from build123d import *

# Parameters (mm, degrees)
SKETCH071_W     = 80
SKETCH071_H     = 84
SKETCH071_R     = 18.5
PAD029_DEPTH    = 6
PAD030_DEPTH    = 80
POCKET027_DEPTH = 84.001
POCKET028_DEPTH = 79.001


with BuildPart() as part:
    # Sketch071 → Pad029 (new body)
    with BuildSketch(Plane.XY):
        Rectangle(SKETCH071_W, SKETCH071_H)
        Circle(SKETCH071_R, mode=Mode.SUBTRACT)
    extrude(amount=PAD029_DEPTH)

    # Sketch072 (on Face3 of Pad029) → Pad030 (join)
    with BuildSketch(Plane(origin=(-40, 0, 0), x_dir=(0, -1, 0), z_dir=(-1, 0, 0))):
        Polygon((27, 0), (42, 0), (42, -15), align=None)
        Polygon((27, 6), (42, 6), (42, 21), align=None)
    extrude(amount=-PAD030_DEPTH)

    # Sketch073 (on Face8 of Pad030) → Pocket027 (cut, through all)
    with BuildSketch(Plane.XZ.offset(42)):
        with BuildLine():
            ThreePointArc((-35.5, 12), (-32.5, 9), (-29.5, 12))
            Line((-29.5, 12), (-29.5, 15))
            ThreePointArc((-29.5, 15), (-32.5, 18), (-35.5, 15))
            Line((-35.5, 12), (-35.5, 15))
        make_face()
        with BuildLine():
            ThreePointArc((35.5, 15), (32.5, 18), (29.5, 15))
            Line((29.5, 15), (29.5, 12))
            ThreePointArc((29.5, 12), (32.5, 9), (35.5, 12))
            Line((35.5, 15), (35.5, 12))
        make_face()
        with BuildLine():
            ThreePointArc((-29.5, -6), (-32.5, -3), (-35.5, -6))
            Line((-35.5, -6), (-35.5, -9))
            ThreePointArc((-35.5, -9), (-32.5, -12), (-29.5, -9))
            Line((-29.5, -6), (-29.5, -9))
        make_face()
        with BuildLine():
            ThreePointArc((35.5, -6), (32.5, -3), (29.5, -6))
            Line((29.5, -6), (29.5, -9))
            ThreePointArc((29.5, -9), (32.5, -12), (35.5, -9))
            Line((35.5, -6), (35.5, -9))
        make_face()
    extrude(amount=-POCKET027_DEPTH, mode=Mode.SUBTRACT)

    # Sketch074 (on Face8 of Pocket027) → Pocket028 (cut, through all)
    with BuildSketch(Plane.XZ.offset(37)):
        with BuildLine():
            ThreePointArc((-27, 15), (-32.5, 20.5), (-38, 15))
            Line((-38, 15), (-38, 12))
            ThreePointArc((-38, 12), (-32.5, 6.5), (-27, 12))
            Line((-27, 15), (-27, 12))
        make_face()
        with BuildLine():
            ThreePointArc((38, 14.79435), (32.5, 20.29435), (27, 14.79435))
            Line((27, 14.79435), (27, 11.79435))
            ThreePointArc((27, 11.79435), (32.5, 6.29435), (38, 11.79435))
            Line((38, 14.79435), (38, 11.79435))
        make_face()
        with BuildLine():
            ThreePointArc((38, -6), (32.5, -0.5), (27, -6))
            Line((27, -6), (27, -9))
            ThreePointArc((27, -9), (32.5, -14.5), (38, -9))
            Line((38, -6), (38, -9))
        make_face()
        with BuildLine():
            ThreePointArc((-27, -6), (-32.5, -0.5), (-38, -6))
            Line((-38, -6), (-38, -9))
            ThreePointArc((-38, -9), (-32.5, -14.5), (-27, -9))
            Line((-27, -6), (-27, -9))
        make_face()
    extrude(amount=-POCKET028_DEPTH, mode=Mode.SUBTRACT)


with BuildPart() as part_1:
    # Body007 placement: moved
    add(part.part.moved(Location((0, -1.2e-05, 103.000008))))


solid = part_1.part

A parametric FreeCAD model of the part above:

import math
import FreeCAD as App
import Part
import Sketcher

V = App.Vector
Q = App.Units.Quantity


def add_polygon(sketch, points):
    """Adds a closed chain of lines whose ends are joined by coincident constraints."""
    first, n = sketch.GeometryCount, len(points)
    for a, b in zip(points, points[1:] + points[:1]):
        sketch.addGeometry(Part.LineSegment(App.Vector(*a, 0), App.Vector(*b, 0)), False)
    for i in range(n):
        sketch.addConstraint(Sketcher.Constraint("Coincident", first + i, 2, first + (i + 1) % n, 1))

doc = App.newDocument("Part")
body = doc.addObject("PartDesign::Body", "Body")

sketch1 = body.newObject("Sketcher::SketchObject", "Sketch")
sketch1.AttachmentSupport = (doc.getObject("XY_Plane"), [""])
sketch1.MapMode = "FlatFace"
add_polygon(sketch1, [(-40, 42), (-40, -42), (40, -42), (40, 42)])
sketch1.addGeometry(Part.Circle(V(0, 0, 0), V(0, 0, 1), 18), False)
sketch1.addConstraint([
    Sketcher.Constraint("Vertical", 0),
    Sketcher.Constraint("Horizontal", 1),
    Sketcher.Constraint("Vertical", 2),
    Sketcher.Constraint("Horizontal", 3),
    Sketcher.Constraint("Coincident", 4, 3, -1, 1),
    Sketcher.Constraint("Symmetric", 0, 2, 2, 2, -1, 1),
    Sketcher.Constraint("Diameter", 4, Q("37 mm")),
    Sketcher.Constraint("DistanceX", 1, 1, 1, 2, Q("80 mm")),
    Sketcher.Constraint("DistanceY", 0, 2, 0, 1, Q("84 mm")),
])
pad1 = body.newObject("PartDesign::Pad", "Pad")
pad1.Profile = sketch1
pad1.Length = 6

sketch2 = body.newObject("Sketcher::SketchObject", "Sketch001")
sketch2.AttachmentSupport = (doc.getObject("YZ_Plane"), [""])
sketch2.MapMode = "FlatFace"
sketch2.AttachmentOffset = App.Placement(V(0, 0, -40), App.Rotation())
add_polygon(sketch2, [(-42, 0), (-27, 0), (-42, -15)])
add_polygon(sketch2, [(-27, 6), (-42, 6), (-42, 21)])
sketch2.addConstraint([
    Sketcher.Constraint("Horizontal", 0),
    Sketcher.Constraint("Vertical", 2),
    Sketcher.Constraint("Horizontal", 3),
    Sketcher.Constraint("Vertical", 4),
    Sketcher.Constraint("PointOnObject", 0, 2, -1),
    Sketcher.Constraint("Perpendicular", 1, 5),
    Sketcher.Constraint("Vertical", 2, 2, 3, 2),
    Sketcher.Constraint("Vertical", 0, 2, 5, 2),
    Sketcher.Constraint("Equal", 3, 2),
    Sketcher.Constraint("DistanceX", 0, 1, 0, 2, Q("15 mm")),
    Sketcher.Constraint("DistanceX", 0, 2, -1, 1, Q("27 mm")),
    Sketcher.Constraint("DistanceY", -1, 1, 3, 2, Q("6 mm")),
])
pad2 = body.newObject("PartDesign::Pad", "Pad001")
pad2.Profile = sketch2
pad2.Length = 80

sketch3 = body.newObject("Sketcher::SketchObject", "Sketch002")
sketch3.AttachmentSupport = (doc.getObject("XZ_Plane"), [""])
sketch3.MapMode = "FlatFace"
sketch3.AttachmentOffset = App.Placement(V(0, 0, 42), App.Rotation())
sketch3.addGeometry([
    Part.ArcOfCircle(Part.Circle(V(-32.5, 12, 0), V(0, 0, 1), 3), math.radians(180), math.radians(360)),
    Part.LineSegment(V(-29.5, 12, 0), V(-29.5, 15, 0)),
    Part.ArcOfCircle(Part.Circle(V(-32.5, 15, 0), V(0, 0, 1), 3), math.radians(0), math.radians(180)),
    Part.LineSegment(V(-35.5, 15, 0), V(-35.5, 12, 0)),
    Part.ArcOfCircle(Part.Circle(V(32.5, 15, 0), V(0, 0, 1), 3), math.radians(0), math.radians(180)),
    Part.LineSegment(V(29.5, 15, 0), V(29.5, 12, 0)),
    Part.ArcOfCircle(Part.Circle(V(32.5, 12, 0), V(0, 0, 1), 3), math.radians(180), math.radians(360)),
    Part.LineSegment(V(35.5, 12, 0), V(35.5, 15, 0)),
    Part.ArcOfCircle(Part.Circle(V(-32.5, -6, 0), V(0, 0, 1), 3), math.radians(0), math.radians(180)),
    Part.LineSegment(V(-35.5, -6, 0), V(-35.5, -9, 0)),
    Part.ArcOfCircle(Part.Circle(V(-32.5, -9, 0), V(0, 0, 1), 3), math.radians(180), math.radians(360)),
    Part.LineSegment(V(-29.5, -9, 0), V(-29.5, -6, 0)),
    Part.ArcOfCircle(Part.Circle(V(32.5, -6, 0), V(0, 0, 1), 3), math.radians(0), math.radians(180)),
    Part.LineSegment(V(29.5, -6, 0), V(29.5, -9, 0)),
    Part.ArcOfCircle(Part.Circle(V(32.5, -9, 0), V(0, 0, 1), 3), math.radians(180), math.radians(360)),
    Part.LineSegment(V(35.5, -9, 0), V(35.5, -6, 0)),
], False)
sketch3.addConstraint([
    Sketcher.Constraint("Tangent", 0, 2, 1, 1),
    Sketcher.Constraint("Tangent", 1, 2, 2, 1),
    Sketcher.Constraint("Tangent", 2, 2, 3, 1),
    Sketcher.Constraint("Tangent", 3, 2, 0, 1),
    Sketcher.Constraint("Tangent", 4, 2, 5, 1),
    Sketcher.Constraint("Tangent", 5, 2, 6, 1),
    Sketcher.Constraint("Tangent", 6, 2, 7, 1),
    Sketcher.Constraint("Tangent", 7, 2, 4, 1),
    Sketcher.Constraint("Tangent", 8, 2, 9, 1),
    Sketcher.Constraint("Tangent", 9, 2, 10, 1),
    Sketcher.Constraint("Tangent", 10, 2, 11, 1),
    Sketcher.Constraint("Tangent", 11, 2, 8, 1),
    Sketcher.Constraint("Tangent", 12, 2, 13, 1),
    Sketcher.Constraint("Tangent", 13, 2, 14, 1),
    Sketcher.Constraint("Tangent", 14, 2, 15, 1),
    Sketcher.Constraint("Tangent", 15, 2, 12, 1),
    Sketcher.Constraint("Vertical", 1),
    Sketcher.Constraint("Vertical", 3),
    Sketcher.Constraint("Vertical", 5),
    Sketcher.Constraint("Vertical", 7),
    Sketcher.Constraint("Vertical", 9),
    Sketcher.Constraint("Vertical", 11),
    Sketcher.Constraint("Vertical", 13),
    Sketcher.Constraint("Vertical", 15),
    Sketcher.Constraint("Equal", 2, 4),
    Sketcher.Constraint("Equal", 6, 8),
    Sketcher.Constraint("Equal", 10, 12),
    Sketcher.Constraint("Symmetric", 2, 3, 4, 3, -2),
    Sketcher.Constraint("Symmetric", 8, 3, 12, 3, -2),
    Sketcher.Constraint("Horizontal", 0, 3, 6, 3),
    Sketcher.Constraint("Horizontal", 10, 3, 14, 3),
    Sketcher.Constraint("Vertical", 2, 3, 8, 3),
    Sketcher.Constraint("Equal", 7, 9),
    Sketcher.Constraint("Radius", 0, Q("3 mm")),
    Sketcher.Constraint("DistanceY", 1, 1, 1, 2, Q("3 mm")),
    Sketcher.Constraint("DistanceY", -1, 1, 0, 3, Q("12 mm")),
    Sketcher.Constraint("DistanceY", 8, 3, -1, 1, Q("6 mm")),
    Sketcher.Constraint("DistanceX", 2, 3, 4, 3, Q("65 mm")),
])
pocket1 = body.newObject("PartDesign::Pocket", "Pocket")
pocket1.Profile = sketch3
pocket1.Type = "ThroughAll"

sketch4 = body.newObject("Sketcher::SketchObject", "Sketch003")
sketch4.AttachmentSupport = (doc.getObject("XZ_Plane"), [""])
sketch4.MapMode = "FlatFace"
sketch4.AttachmentOffset = App.Placement(V(0, 0, 37), App.Rotation())
sketch4.addGeometry([
    Part.ArcOfCircle(Part.Circle(V(-32.5, 15, 0), V(0, 0, 1), 5.5), math.radians(0), math.radians(180)),
    Part.LineSegment(V(-38, 15, 0), V(-38, 12, 0)),
    Part.ArcOfCircle(Part.Circle(V(-32.5, 12, 0), V(0, 0, 1), 5.5), math.radians(180), math.radians(360)),
    Part.LineSegment(V(-27, 12, 0), V(-27, 15, 0)),
    Part.ArcOfCircle(Part.Circle(V(32.5, 14.8, 0), V(0, 0, 1), 5.5), math.radians(0), math.radians(180)),
    Part.LineSegment(V(27, 14.8, 0), V(27, 11.8, 0)),
    Part.ArcOfCircle(Part.Circle(V(32.5, 11.8, 0), V(0, 0, 1), 5.5), math.radians(180), math.radians(360)),
    Part.LineSegment(V(38, 11.8, 0), V(38, 14.8, 0)),
    Part.ArcOfCircle(Part.Circle(V(32.5, -6, 0), V(0, 0, 1), 5.5), math.radians(0), math.radians(180)),
    Part.LineSegment(V(27, -6, 0), V(27, -9, 0)),
    Part.ArcOfCircle(Part.Circle(V(32.5, -9, 0), V(0, 0, 1), 5.5), math.radians(180), math.radians(360)),
    Part.LineSegment(V(38, -9, 0), V(38, -6, 0)),
    Part.ArcOfCircle(Part.Circle(V(-32.5, -6, 0), V(0, 0, 1), 5.5), math.radians(0), math.radians(180)),
    Part.LineSegment(V(-38, -6, 0), V(-38, -9, 0)),
    Part.ArcOfCircle(Part.Circle(V(-32.5, -9, 0), V(0, 0, 1), 5.5), math.radians(180), math.radians(360)),
    Part.LineSegment(V(-27, -9, 0), V(-27, -6, 0)),
], False)
sketch4.addConstraint([
    Sketcher.Constraint("Tangent", 0, 2, 1, 1),
    Sketcher.Constraint("Tangent", 1, 2, 2, 1),
    Sketcher.Constraint("Tangent", 2, 2, 3, 1),
    Sketcher.Constraint("Tangent", 3, 2, 0, 1),
    Sketcher.Constraint("Tangent", 4, 2, 5, 1),
    Sketcher.Constraint("Tangent", 5, 2, 6, 1),
    Sketcher.Constraint("Tangent", 6, 2, 7, 1),
    Sketcher.Constraint("Tangent", 7, 2, 4, 1),
    Sketcher.Constraint("Tangent", 8, 2, 9, 1),
    Sketcher.Constraint("Tangent", 9, 2, 10, 1),
    Sketcher.Constraint("Tangent", 10, 2, 11, 1),
    Sketcher.Constraint("Tangent", 11, 2, 8, 1),
    Sketcher.Constraint("Tangent", 12, 2, 13, 1),
    Sketcher.Constraint("Tangent", 13, 2, 14, 1),
    Sketcher.Constraint("Tangent", 14, 2, 15, 1),
    Sketcher.Constraint("Tangent", 15, 2, 12, 1),
    Sketcher.Constraint("Vertical", 1),
    Sketcher.Constraint("Vertical", 3),
    Sketcher.Constraint("Vertical", 5),
    Sketcher.Constraint("Vertical", 7),
    Sketcher.Constraint("Vertical", 9),
    Sketcher.Constraint("Vertical", 11),
    Sketcher.Constraint("Vertical", 13),
    Sketcher.Constraint("Vertical", 15),
    Sketcher.Constraint("Equal", 2, 4),
    Sketcher.Constraint("Equal", 6, 8),
    Sketcher.Constraint("Equal", 10, 12),
    Sketcher.Constraint("Symmetric", 8, 3, 12, 3, -2),
    Sketcher.Constraint("Horizontal", 10, 3, 14, 3),
    Sketcher.Constraint("Vertical", 6, 3, 8, 3),
    Sketcher.Constraint("Vertical", 2, 3, 12, 3),
    Sketcher.Constraint("Equal", 3, 5),
    Sketcher.Constraint("Equal", 7, 9),
    Sketcher.Constraint("Radius", 0, Q("5.5 mm")),
    Sketcher.Constraint("DistanceY", 1, 2, 1, 1, Q("3 mm")),
    Sketcher.Constraint("DistanceY", -1, 1, 0, 3, Q("15 mm")),
    Sketcher.Constraint("DistanceY", 8, 3, -1, 1, Q("6 mm")),
    Sketcher.Constraint("DistanceX", 0, 2, -1, 1, Q("38 mm")),
    Sketcher.Constraint("DistanceY", -1, 1, 4, 3, Q("14.79435 mm")),
])
pocket2 = body.newObject("PartDesign::Pocket", "Pocket001")
pocket2.Profile = sketch4
pocket2.Type = "ThroughAll"
body2 = doc.addObject("PartDesign::Body", "Body001")
doc.recompute()

body.Placement = App.Placement(V(0, -0.000012, 103.000008), App.Rotation(V(0, 0, 1), 0))
boolean = body2.newObject("PartDesign::Boolean", "Boolean")
boolean.Type = "Fuse"
boolean.addObjects([body])

doc.recompute()
